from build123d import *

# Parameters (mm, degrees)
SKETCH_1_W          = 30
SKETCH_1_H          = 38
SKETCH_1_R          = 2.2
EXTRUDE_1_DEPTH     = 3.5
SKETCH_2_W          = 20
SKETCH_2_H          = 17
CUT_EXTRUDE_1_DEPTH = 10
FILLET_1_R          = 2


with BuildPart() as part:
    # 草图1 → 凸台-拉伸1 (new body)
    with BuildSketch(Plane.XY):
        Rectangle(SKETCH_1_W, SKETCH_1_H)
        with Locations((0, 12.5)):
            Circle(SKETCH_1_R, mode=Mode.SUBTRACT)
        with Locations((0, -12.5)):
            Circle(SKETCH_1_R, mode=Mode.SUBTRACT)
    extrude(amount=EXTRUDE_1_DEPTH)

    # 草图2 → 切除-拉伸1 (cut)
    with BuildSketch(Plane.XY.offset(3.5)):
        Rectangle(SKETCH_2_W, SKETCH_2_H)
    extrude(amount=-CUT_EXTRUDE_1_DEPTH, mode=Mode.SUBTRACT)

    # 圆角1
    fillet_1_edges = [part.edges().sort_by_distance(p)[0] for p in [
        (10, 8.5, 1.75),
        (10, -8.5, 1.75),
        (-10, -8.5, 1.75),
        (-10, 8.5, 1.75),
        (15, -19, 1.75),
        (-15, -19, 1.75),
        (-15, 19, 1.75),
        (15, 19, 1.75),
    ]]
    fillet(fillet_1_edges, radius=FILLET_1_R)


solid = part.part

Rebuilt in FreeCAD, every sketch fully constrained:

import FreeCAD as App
import Part
import Sketcher
from FreeCAD import Vector
Q = App.Units.Quantity


def edges_at(feature, points):
    """Names of the edges that pass closest to the given points."""
    edges = feature.Shape.Edges
    near = lambda p: min(range(len(edges)), key=lambda i: edges[i].distToShape(Part.Vertex(*p))[0])
    return sorted({f"Edge{near(p) + 1}" for p in points})


def add_polygon(sketch, points):
    """Adds a closed chain of lines whose ends are joined by coincident constraints."""
    first, n = sketch.GeometryCount, len(points)
    for a, b in zip(points, points[1:] + points[:1]):
        sketch.addGeometry(Part.LineSegment(App.Vector(*a, 0), App.Vector(*b, 0)), False)
    for i in range(n):
        sketch.addConstraint(Sketcher.Constraint("Coincident", first + i, 2, first + (i + 1) % n, 1))

doc = App.newDocument("Part")
body = doc.addObject("PartDesign::Body", "Body")

# Sketch on XY plane
sketch1 = body.newObject("Sketcher::SketchObject", "Sketch")
sketch1.AttachmentSupport = (doc.getObject("XY_Plane"), [""])
sketch1.MapMode = "FlatFace"
add_polygon(sketch1, [(-15, 19), (-15, -19), (15, -19), (15, 19)])  # lines 0-3
sketch1.addGeometry(Part.Circle(Vector(0, -12.5, 0), Vector(0, 0, 1), 2.2), False)  # 4
sketch1.addGeometry(Part.Circle(Vector(0, 12.5, 0), Vector(0, 0, 1), 2.2), False)  # 5
sketch1.addConstraint([
    Sketcher.Constraint("Vertical", 0),
    Sketcher.Constraint("Horizontal", 1),
    Sketcher.Constraint("Vertical", 2),
    Sketcher.Constraint("Horizontal", 3),
    Sketcher.Constraint("Equal", 4, 5),
    Sketcher.Constraint("Symmetric", 4, 3, 5, 3, -1, 1),
    Sketcher.Constraint("Symmetric", 0, 2, 2, 2, -1, 1),
    Sketcher.Constraint("PointOnObject", 4, 3, -2),
    Sketcher.Constraint("Diameter", 4, Q("4.4 mm")),
    Sketcher.Constraint("DistanceX", 1, 1, 1, 2, Q("30 mm")),
    Sketcher.Constraint("DistanceY", 0, 2, 0, 1, Q("38 mm")),
    Sketcher.Constraint("DistanceY", 4, 3, 5, 3, Q("25 mm")),
])
pad1 = body.newObject("PartDesign::Pad", "Pad")
pad1.Profile = sketch1
pad1.Length = 3.5

# Sketch on XY plane
sketch2 = body.newObject("Sketcher::SketchObject", "Sketch001")
sketch2.AttachmentSupport = (doc.getObject("XY_Plane"), [""])
sketch2.MapMode = "FlatFace"
sketch2.AttachmentOffset = App.Placement(Vector(0, 0, 3.5), App.Rotation())
add_polygon(sketch2, [(-10, 8), (-10, -8), (10, -8), (10, 8)])  # lines 0-3
sketch2.addConstraint([
    Sketcher.Constraint("Vertical", 0),
    Sketcher.Constraint("Horizontal", 1),
    Sketcher.Constraint("Vertical", 2),
    Sketcher.Constraint("Horizontal", 3),
    Sketcher.Constraint("Symmetric", 0, 2, 2, 2, -1, 1),
    Sketcher.Constraint("DistanceX", 1, 1, 1, 2, Q("20 mm")),
    Sketcher.Constraint("DistanceY", 0, 2, 0, 1, Q("17 mm")),
])
pocket1 = body.newObject("PartDesign::Pocket", "Pocket")
pocket1.Profile = sketch2
pocket1.Length = 10
doc.recompute()

fillet = body.newObject("PartDesign::Fillet", "Fillet")
fillet.Base = (pocket1, edges_at(pocket1, [
    (10, 8.5, 1.75),
    (10, -8.5, 1.75),
    (-10, -8.5, 1.75),
    (-10, 8.5, 1.75),
    (15, -19, 1.75),
    (-15, -19, 1.75),
    (-15, 19, 1.75),
    (15, 19, 1.75),
]))
fillet.Radius = 2

doc.recompute()
